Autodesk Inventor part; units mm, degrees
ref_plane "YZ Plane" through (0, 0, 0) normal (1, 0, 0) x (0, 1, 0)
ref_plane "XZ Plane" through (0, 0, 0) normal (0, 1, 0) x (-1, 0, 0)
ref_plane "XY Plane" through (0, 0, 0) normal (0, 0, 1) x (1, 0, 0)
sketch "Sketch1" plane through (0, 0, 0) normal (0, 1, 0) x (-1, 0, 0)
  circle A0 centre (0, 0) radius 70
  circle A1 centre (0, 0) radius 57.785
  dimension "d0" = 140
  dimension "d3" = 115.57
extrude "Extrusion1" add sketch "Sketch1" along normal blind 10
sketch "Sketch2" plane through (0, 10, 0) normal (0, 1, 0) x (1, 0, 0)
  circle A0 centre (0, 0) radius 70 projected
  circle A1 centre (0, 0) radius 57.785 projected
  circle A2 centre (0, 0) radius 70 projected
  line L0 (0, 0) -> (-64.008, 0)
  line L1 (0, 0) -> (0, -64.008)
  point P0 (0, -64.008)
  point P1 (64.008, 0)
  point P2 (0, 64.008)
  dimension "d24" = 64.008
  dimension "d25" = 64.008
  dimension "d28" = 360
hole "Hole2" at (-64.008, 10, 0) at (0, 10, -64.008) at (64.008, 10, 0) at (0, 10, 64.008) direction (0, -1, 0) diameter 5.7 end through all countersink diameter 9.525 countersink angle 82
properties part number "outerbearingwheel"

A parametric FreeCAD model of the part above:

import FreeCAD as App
import Part
import Sketcher

V = App.Vector
Q = App.Units.Quantity

doc = App.newDocument("Part")
body = doc.addObject("PartDesign::Body", "Body")

# Sketch on XZ plane
sketch1 = doc.addObject("Sketcher::SketchObject", "Sketch")
body.addObject(sketch1)
sketch1.AttachmentSupport = (doc.XZ_Plane, [""])
sketch1.MapMode = "FlatFace"
sketch1.addGeometry(Part.Circle(V(0, 0, 0), V(0, 0, 1), 70), False)
sketch1.addGeometry(Part.Circle(V(0, 0, 0), V(0, 0, 1), 57.785), False)
sketch1.addConstraint(Sketcher.Constraint("Coincident", 0, 3, -1, 1))
sketch1.addConstraint(Sketcher.Constraint("Coincident", 1, 3, -1, 1))
sketch1.addConstraint(Sketcher.Constraint("Diameter", 1, Q("4.55 in")))
sketch1.addConstraint(Sketcher.Constraint("Diameter", 0, Q("5.5118 in")))
pad1 = doc.addObject("PartDesign::Pad", "Pad")
body.addObject(pad1)
pad1.Profile = sketch1
pad1.Length = Q("0.3937008 in")
pad1.Reversed = True

# Sketch on XZ plane
sketch2 = doc.addObject("Sketcher::SketchObject", "Sketch001")
body.addObject(sketch2)
sketch2.AttachmentSupport = (doc.XZ_Plane, [""])
sketch2.MapMode = "FlatFace"
sketch2.AttachmentOffset = App.Placement(V(0, 0, -0.3937008 * 25.4), App.Rotation())
sketch2.addGeometry(Part.Circle(V(-64.008, 0, 0), V(0, 0, 1), 2.85), False)
sketch2.addGeometry(Part.Circle(V(0, -64.008, 0), V(0, 0, 1), 2.85), False)
sketch2.addGeometry(Part.Circle(V(64.008, 0, 0), V(0, 0, 1), 2.85), False)
sketch2.addGeometry(Part.Circle(V(0, 64.008, 0), V(0, 0, 1), 2.85), False)
sketch2.addConstraint(Sketcher.Constraint("Equal", 0, 1))
sketch2.addConstraint(Sketcher.Constraint("Equal", 1, 2))
sketch2.addConstraint(Sketcher.Constraint("Equal", 2, 3))
sketch2.addConstraint(Sketcher.Constraint("Symmetric", 0, 3, 2, 3, -1, 1))
sketch2.addConstraint(Sketcher.Constraint("Symmetric", 1, 3, 3, 3, -1, 1))
sketch2.addConstraint(Sketcher.Constraint("PointOnObject", 0, 3, -1))
sketch2.addConstraint(Sketcher.Constraint("PointOnObject", 1, 3, -2))
sketch2.addConstraint(Sketcher.Constraint("Diameter", 0, Q("0.2244 in")))
sketch2.addConstraint(Sketcher.Constraint("DistanceX", 0, 3, -1, 1, Q("2.52 in")))
sketch2.addConstraint(Sketcher.Constraint("DistanceY", 1, 3, -1, 1, Q("2.52 in")))
doc.recompute()
hole = doc.addObject("PartDesign::Hole", "Hole")
body.addObject(hole)
hole.Profile = sketch2
hole.ThreadType = "None"
hole.Diameter = Q("0.2244094 in")
hole.DepthType = "ThroughAll"
hole.HoleCutType = "Countersink"
hole.HoleCutDiameter = Q("0.375 in")
hole.HoleCutCountersinkAngle = 82
hole.Reversed = True

doc.recompute()
